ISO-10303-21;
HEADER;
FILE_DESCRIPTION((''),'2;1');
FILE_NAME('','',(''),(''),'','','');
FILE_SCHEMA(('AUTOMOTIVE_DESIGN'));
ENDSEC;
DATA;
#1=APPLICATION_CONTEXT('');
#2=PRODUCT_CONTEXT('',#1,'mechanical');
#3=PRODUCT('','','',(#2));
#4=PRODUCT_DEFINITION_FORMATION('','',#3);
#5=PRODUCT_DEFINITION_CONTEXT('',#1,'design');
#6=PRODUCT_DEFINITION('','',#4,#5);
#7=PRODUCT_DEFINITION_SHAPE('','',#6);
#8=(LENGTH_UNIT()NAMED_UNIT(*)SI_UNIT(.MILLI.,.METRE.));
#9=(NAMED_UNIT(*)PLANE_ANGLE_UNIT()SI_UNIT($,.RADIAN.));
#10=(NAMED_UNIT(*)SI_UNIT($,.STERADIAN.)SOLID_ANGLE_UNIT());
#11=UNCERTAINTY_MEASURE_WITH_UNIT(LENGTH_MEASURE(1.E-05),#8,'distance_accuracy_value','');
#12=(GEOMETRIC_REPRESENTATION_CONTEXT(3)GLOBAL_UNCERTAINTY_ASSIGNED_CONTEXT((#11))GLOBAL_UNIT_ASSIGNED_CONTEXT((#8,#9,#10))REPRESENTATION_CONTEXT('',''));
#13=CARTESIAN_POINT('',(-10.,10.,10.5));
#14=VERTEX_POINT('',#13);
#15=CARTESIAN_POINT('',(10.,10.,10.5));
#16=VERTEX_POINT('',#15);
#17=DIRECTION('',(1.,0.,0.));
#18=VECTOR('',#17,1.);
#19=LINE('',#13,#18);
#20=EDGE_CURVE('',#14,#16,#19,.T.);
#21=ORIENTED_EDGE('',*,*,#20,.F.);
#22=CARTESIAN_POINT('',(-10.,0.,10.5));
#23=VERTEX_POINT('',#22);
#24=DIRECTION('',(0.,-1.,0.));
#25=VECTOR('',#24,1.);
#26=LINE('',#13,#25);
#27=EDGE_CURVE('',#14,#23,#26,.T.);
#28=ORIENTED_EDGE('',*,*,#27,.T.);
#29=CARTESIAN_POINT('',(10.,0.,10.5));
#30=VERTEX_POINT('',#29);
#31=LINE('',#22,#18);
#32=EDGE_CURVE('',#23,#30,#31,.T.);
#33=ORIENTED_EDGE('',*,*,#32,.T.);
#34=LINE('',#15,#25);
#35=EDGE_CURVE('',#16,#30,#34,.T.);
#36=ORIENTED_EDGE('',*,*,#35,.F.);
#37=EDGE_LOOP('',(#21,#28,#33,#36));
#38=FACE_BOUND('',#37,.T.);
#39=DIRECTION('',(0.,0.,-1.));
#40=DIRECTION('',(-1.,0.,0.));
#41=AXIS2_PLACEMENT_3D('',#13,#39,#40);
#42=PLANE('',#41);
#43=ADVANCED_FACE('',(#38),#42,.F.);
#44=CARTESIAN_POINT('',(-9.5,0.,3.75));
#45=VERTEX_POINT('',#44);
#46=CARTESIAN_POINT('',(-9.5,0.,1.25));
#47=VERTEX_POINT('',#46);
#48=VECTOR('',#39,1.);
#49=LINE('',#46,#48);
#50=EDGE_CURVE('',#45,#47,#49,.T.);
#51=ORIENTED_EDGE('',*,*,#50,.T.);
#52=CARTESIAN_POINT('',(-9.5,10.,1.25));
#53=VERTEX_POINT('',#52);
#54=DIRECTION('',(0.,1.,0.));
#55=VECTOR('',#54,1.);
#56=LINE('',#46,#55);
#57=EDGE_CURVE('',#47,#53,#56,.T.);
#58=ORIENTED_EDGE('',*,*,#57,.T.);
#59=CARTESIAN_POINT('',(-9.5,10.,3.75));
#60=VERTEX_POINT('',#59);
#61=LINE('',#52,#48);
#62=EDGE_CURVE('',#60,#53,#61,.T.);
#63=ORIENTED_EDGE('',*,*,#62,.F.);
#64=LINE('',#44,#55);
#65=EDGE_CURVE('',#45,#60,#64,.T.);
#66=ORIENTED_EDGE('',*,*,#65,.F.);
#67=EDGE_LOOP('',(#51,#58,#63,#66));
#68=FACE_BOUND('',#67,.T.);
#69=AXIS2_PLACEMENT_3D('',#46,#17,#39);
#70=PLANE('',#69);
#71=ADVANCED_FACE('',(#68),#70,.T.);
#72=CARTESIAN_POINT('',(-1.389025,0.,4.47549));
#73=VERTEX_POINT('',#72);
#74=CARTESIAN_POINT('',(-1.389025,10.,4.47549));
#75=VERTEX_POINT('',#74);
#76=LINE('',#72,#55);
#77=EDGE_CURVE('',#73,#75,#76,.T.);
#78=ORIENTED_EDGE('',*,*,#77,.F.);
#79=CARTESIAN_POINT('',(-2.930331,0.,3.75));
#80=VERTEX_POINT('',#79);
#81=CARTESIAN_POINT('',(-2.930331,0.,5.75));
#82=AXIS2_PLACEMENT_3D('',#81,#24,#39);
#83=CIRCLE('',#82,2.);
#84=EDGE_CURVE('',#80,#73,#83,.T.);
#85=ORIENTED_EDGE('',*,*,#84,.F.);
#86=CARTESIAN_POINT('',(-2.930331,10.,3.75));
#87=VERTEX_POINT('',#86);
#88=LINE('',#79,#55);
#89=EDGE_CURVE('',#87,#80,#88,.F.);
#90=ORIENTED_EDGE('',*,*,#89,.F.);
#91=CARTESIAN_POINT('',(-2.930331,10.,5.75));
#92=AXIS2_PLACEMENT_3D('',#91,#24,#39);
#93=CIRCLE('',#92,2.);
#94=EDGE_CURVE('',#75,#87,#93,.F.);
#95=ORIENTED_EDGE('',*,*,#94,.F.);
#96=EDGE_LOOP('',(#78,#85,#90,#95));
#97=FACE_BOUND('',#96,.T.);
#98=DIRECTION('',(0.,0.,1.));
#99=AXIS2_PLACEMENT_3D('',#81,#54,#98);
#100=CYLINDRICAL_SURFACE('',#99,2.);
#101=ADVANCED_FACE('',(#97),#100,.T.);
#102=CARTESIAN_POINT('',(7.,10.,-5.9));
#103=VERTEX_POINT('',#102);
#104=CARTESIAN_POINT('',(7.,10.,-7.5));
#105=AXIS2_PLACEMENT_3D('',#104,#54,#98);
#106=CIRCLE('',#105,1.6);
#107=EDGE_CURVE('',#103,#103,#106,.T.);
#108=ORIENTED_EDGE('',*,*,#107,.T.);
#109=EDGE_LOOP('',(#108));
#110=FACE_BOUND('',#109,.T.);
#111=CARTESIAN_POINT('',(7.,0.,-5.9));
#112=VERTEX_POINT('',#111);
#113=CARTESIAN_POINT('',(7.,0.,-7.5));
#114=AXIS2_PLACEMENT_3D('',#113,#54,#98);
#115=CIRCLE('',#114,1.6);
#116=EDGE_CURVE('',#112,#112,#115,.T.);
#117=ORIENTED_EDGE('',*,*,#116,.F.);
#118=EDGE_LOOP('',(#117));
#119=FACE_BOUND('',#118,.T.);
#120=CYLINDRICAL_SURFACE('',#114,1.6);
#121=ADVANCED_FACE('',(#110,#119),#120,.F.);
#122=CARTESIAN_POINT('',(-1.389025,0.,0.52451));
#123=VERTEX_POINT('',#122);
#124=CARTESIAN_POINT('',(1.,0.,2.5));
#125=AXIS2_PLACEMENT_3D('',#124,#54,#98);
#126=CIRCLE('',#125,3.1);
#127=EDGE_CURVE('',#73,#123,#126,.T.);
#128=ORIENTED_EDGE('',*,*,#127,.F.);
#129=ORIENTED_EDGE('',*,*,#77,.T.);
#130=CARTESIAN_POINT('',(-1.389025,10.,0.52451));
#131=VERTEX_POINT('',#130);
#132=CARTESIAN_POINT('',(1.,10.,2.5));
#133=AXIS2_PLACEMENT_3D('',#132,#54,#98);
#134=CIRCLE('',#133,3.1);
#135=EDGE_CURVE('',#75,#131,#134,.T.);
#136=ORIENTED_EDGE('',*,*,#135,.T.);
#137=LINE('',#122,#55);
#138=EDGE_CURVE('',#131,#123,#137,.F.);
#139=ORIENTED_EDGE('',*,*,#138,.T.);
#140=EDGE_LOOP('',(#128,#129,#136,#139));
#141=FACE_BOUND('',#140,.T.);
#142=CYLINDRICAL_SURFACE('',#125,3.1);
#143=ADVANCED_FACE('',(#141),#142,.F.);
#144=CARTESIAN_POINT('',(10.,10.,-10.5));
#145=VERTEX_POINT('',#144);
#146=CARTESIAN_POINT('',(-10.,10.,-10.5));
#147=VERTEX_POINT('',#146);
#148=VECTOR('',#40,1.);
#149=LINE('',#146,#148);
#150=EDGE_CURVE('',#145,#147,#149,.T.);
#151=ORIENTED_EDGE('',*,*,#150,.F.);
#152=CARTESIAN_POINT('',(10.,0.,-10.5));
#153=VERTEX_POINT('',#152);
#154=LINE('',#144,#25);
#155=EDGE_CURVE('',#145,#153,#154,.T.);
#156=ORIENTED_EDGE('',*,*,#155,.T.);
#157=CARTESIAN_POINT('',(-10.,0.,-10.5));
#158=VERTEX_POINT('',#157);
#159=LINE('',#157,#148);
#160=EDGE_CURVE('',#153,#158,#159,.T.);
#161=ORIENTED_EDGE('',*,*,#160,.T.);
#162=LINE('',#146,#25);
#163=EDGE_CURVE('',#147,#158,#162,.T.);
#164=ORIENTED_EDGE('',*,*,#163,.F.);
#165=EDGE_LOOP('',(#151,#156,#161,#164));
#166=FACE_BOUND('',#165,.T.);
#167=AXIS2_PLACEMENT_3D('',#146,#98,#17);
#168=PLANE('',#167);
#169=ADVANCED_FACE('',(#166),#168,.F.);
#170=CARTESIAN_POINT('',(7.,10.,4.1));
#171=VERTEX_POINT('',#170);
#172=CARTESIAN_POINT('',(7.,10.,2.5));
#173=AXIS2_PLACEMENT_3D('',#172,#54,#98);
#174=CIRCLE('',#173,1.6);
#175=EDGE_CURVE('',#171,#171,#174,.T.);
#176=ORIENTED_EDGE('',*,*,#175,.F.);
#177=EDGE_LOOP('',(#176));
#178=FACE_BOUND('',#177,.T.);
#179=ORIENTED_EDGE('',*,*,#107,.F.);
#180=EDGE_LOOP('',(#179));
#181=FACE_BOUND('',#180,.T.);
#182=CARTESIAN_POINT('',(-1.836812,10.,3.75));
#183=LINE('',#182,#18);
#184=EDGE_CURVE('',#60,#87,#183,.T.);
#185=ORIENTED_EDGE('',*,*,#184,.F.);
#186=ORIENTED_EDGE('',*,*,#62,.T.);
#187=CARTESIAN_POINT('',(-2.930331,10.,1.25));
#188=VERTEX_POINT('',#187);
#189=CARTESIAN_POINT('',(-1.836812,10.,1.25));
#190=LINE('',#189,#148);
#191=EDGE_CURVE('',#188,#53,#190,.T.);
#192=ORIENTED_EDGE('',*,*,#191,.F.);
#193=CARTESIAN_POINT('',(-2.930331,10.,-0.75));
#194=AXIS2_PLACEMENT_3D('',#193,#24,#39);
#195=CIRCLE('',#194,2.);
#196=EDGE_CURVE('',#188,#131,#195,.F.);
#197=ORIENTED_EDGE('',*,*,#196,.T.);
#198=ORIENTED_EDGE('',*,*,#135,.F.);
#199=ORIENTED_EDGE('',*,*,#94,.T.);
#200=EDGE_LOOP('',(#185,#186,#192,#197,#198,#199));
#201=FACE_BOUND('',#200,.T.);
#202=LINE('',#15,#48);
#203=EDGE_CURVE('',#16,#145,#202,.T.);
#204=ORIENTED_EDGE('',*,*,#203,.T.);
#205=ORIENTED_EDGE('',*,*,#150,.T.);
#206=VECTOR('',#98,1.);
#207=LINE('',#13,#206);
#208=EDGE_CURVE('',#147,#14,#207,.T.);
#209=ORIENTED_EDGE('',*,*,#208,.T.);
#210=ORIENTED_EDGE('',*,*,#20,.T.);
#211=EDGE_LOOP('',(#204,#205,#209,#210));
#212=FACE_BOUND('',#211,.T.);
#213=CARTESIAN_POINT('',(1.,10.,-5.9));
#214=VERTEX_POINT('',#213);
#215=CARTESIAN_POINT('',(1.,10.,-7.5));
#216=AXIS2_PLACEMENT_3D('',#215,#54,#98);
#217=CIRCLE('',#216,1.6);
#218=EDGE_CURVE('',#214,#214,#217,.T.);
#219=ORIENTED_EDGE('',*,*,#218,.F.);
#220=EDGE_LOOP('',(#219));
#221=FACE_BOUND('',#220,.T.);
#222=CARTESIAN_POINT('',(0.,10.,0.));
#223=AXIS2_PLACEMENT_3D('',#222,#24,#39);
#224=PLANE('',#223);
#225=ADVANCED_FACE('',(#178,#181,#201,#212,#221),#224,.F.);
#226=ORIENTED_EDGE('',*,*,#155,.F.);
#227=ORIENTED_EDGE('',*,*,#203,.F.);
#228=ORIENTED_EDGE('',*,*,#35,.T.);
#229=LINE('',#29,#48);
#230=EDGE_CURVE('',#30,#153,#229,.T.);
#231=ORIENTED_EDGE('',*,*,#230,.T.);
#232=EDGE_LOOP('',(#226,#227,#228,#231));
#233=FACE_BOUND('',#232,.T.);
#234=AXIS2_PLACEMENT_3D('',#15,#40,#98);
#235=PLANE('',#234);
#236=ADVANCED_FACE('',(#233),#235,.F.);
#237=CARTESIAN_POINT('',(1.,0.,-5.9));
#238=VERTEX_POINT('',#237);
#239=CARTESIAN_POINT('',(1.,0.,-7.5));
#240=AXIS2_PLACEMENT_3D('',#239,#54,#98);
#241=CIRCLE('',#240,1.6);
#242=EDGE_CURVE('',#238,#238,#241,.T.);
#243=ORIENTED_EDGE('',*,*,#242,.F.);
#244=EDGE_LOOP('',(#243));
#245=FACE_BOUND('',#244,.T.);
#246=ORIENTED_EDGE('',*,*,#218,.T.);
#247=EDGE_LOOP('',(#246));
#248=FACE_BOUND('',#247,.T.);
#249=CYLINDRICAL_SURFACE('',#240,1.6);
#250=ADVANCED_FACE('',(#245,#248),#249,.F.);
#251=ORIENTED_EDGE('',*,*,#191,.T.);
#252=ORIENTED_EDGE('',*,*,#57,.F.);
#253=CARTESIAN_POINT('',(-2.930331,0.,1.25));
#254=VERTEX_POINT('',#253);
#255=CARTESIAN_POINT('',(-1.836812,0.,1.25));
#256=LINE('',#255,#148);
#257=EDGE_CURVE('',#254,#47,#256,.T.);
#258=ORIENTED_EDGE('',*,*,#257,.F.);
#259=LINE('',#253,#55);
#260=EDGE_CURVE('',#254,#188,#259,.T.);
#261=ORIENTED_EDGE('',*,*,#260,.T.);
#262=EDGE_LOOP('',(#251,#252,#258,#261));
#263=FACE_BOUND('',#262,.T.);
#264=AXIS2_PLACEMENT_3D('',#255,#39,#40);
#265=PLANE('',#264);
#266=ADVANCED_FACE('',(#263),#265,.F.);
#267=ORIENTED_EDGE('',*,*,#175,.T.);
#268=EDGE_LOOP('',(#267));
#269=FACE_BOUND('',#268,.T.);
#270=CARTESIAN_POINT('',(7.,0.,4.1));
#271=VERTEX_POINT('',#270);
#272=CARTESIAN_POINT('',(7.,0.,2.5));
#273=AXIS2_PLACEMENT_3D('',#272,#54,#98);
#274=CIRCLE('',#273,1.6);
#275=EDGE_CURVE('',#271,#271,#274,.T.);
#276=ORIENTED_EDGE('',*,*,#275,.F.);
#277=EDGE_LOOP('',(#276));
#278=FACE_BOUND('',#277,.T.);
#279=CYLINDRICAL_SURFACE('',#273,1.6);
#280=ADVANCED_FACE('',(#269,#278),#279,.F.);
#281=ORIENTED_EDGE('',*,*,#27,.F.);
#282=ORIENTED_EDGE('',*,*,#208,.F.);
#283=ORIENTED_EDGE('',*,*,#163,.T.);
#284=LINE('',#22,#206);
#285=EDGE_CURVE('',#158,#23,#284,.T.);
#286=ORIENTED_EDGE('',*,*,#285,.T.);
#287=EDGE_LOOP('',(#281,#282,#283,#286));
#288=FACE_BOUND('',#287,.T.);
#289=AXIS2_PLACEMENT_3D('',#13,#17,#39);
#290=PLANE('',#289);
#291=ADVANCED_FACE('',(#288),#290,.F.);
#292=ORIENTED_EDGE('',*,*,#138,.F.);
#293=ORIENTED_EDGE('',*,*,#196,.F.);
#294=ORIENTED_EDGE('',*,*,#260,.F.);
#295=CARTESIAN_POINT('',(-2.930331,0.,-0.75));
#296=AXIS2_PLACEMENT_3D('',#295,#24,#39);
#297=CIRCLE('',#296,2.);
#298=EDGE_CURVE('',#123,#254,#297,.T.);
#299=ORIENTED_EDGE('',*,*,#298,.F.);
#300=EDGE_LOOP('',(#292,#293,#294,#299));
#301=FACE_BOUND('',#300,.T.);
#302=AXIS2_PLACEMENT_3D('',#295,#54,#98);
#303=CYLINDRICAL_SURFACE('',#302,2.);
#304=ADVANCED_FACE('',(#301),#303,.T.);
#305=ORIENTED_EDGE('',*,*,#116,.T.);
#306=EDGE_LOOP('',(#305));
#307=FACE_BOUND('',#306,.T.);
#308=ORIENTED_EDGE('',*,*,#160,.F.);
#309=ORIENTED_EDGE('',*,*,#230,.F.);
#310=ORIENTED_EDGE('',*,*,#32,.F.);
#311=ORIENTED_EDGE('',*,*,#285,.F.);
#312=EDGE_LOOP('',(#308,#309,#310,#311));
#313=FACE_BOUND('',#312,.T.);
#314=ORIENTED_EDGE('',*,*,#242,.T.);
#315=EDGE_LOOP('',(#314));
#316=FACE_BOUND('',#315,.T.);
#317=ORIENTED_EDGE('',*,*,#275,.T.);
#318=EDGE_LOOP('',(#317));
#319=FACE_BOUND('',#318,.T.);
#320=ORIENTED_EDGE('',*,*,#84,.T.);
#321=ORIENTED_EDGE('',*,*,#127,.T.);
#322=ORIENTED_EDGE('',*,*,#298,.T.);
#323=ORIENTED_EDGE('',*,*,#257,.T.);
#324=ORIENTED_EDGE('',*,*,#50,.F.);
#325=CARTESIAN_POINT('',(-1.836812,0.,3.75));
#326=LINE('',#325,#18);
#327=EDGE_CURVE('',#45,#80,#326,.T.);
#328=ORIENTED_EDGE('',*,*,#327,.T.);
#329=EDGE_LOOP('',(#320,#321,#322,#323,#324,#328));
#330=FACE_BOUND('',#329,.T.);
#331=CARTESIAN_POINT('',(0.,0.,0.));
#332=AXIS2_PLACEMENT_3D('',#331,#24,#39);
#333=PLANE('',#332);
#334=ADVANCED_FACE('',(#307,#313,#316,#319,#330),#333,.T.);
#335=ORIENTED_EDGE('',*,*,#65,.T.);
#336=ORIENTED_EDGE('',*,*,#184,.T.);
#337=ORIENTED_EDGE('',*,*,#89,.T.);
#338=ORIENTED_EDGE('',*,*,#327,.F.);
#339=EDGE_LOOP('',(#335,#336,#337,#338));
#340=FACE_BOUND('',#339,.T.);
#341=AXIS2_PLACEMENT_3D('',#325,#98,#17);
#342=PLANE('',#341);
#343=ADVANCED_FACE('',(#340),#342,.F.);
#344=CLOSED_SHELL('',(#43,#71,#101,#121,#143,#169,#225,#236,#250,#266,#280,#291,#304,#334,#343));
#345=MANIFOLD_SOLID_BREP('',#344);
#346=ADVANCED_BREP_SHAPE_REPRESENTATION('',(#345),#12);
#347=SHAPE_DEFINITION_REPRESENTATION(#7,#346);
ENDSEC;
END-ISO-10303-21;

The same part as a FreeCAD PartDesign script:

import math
import FreeCAD as App
import Part
import Sketcher

V = App.Vector
Q = App.Units.Quantity


def edges_at(feature, points):
    """Names of the edges that pass closest to the given points."""
    edges = feature.Shape.Edges
    near = lambda p: min(range(len(edges)), key=lambda i: edges[i].distToShape(Part.Vertex(*p))[0])
    return sorted({f"Edge{near(p) + 1}" for p in points})

doc = App.newDocument("Part")
params = doc.addObject("Spreadsheet::Sheet", "Params")
for row, (alias, value) in enumerate([
    ("sketch1_width", "20 mm"),
    ("sketch1_height", "21 mm"),
    ("pad1_length", "10 mm"),
    ("sketch2_radius", "3.1 mm"),
    ("sketch2_height", "2.5 mm"),
    ("fillet_radius", "2 mm"),
    ("sketch3_diameter", "3.2 mm"),
    ("sketch4_width", "0.5 mm"),
    ("sketch4_height", "2.5 mm"),
    ("pad2_length", "10 mm"),
], start=1):
    params.set(f"A{row}", alias)
    params.set(f"B{row}", "=" + value)
    params.setAlias(f"B{row}", alias)

body = doc.addObject("PartDesign::Body", "Body")

# Sketch on XZ plane
sketch1 = body.newObject("Sketcher::SketchObject", "Sketch")
sketch1.AttachmentSupport = (doc.getObject("XZ_Plane"), [""])
sketch1.MapMode = "FlatFace"
sketch1.addGeometry([
    Part.LineSegment(V(-10, -10, 0), V(-10, 10, 0)),
    Part.LineSegment(V(-10, 10, 0), V(10, 10, 0)),
    Part.LineSegment(V(10, 10, 0), V(10, -10, 0)),
    Part.LineSegment(V(10, -10, 0), V(-10, -10, 0)),
], False)
sketch1.addConstraint([
    Sketcher.Constraint("Coincident", 0, 2, 1, 1),
    Sketcher.Constraint("Coincident", 1, 2, 2, 1),
    Sketcher.Constraint("Coincident", 2, 2, 3, 1),
    Sketcher.Constraint("Coincident", 3, 2, 0, 1),
    Sketcher.Constraint("Vertical", 0),
    Sketcher.Constraint("Horizontal", 1),
    Sketcher.Constraint("Vertical", 2),
    Sketcher.Constraint("Horizontal", 3),
    Sketcher.Constraint("Symmetric", 0, 2, 2, 2, -1, 1),
    Sketcher.Constraint("DistanceX", 1, 1, 1, 2, Q("20 mm")),
    Sketcher.Constraint("DistanceY", 0, 1, 0, 2, Q("21 mm")),
])
sketch1.setExpression("Constraints[9]", "Params.sketch1_width")
sketch1.setExpression("Constraints[10]", "Params.sketch1_height")
pad1 = body.newObject("PartDesign::Pad", "Pad")
pad1.Profile = sketch1
pad1.setExpression("Length", "Params.pad1_length")
pad1.Reversed = True

# Sketch on XZ plane
sketch2 = body.newObject("Sketcher::SketchObject", "Sketch001")
sketch2.AttachmentSupport = (doc.getObject("XZ_Plane"), [""])
sketch2.MapMode = "FlatFace"
sketch2.AttachmentOffset = App.Placement(V(0, 0, -10), App.Rotation())
sketch2.addGeometry([
    Part.LineSegment(V(-1.8, 1.2, 0), V(-10, 1.2, 0)),
    Part.LineSegment(V(-10, 1.2, 0), V(-10, 3.8, 0)),
    Part.LineSegment(V(-10, 3.8, 0), V(-1.8, 3.8, 0)),
    Part.ArcOfCircle(Part.Circle(V(1, 2.5, 0), V(0, 0, 1), 3.1), math.radians(-156), math.radians(156)),
], False)
sketch2.addConstraint([
    Sketcher.Constraint("Coincident", 0, 2, 1, 1),
    Sketcher.Constraint("Coincident", 1, 2, 2, 1),
    Sketcher.Constraint("Coincident", 2, 2, 3, 2),
    Sketcher.Constraint("Coincident", 3, 1, 0, 1),
    Sketcher.Constraint("Horizontal", 0),
    Sketcher.Constraint("Vertical", 1),
    Sketcher.Constraint("Horizontal", 2),
    Sketcher.Constraint("Vertical", 2, 2, 3, 1),
    Sketcher.Constraint("Radius", 3, Q("3.1 mm")),
    Sketcher.Constraint("DistanceY", 1, 1, 1, 2, Q("2.5 mm")),
    Sketcher.Constraint("DistanceX", -1, 1, 3, 3, Q("1 mm")),
    Sketcher.Constraint("DistanceX", 0, 2, -1, 1, Q("10 mm")),
    Sketcher.Constraint("DistanceY", -1, 1, 3, 3, Q("2.5 mm")),
])
sketch2.setExpression("Constraints[8]", "Params.sketch2_radius")
sketch2.setExpression("Constraints[9]", "Params.sketch2_height")
pocket1 = body.newObject("PartDesign::Pocket", "Pocket")
pocket1.Profile = sketch2
pocket1.Type = "ThroughAll"
pocket1.Reversed = True
doc.recompute()

fillet = body.newObject("PartDesign::Fillet", "Fillet")
fillet.Base = (pocket1, edges_at(pocket1, [(-1.837, 5, 1.25), (-1.837, 5, 3.75)]))
fillet.setExpression("Radius", "Params.fillet_radius")

# Sketch on XZ plane
sketch3 = body.newObject("Sketcher::SketchObject", "Sketch002")
sketch3.AttachmentSupport = (doc.getObject("XZ_Plane"), [""])
sketch3.MapMode = "FlatFace"
sketch3.AttachmentOffset = App.Placement(V(0, 0, -10), App.Rotation())
sketch3.addGeometry([
    Part.Circle(V(1, -7.5, 0), V(0, 0, 1), 1.6),
    Part.Circle(V(7, -7.5, 0), V(0, 0, 1), 1.6),
    Part.Circle(V(7, 2.5, 0), V(0, 0, 1), 1.6),
], False)
sketch3.addConstraint([
    Sketcher.Constraint("Equal", 0, 1),
    Sketcher.Constraint("Equal", 1, 2),
    Sketcher.Constraint("Horizontal", 0, 3, 1, 3),
    Sketcher.Constraint("Vertical", 1, 3, 2, 3),
    Sketcher.Constraint("Diameter", 0, Q("3.2 mm")),
    Sketcher.Constraint("DistanceX", -1, 1, 0, 3, Q("1 mm")),
    Sketcher.Constraint("DistanceX", -1, 1, 1, 3, Q("7 mm")),
    Sketcher.Constraint("DistanceY", 1, 3, 2, 3, Q("10 mm")),
    Sketcher.Constraint("DistanceY", 0, 3, -1, 1, Q("7.5 mm")),
])
sketch3.setExpression("Constraints[4]", "Params.sketch3_diameter")
pocket2 = body.newObject("PartDesign::Pocket", "Pocket001")
pocket2.Profile = sketch3
pocket2.Type = "ThroughAll"
pocket2.Reversed = True

# Sketch on XZ plane
sketch4 = body.newObject("Sketcher::SketchObject", "Sketch003")
sketch4.AttachmentSupport = (doc.getObject("XZ_Plane"), [""])
sketch4.MapMode = "FlatFace"
sketch4.AttachmentOffset = App.Placement(V(0, 0, -10), App.Rotation())
sketch4.addGeometry([
    Part.LineSegment(V(-10, 1.2, 0), V(-10, 3.8, 0)),
    Part.LineSegment(V(-10, 3.8, 0), V(-9.5, 3.8, 0)),
    Part.LineSegment(V(-9.5, 3.8, 0), V(-9.5, 1.2, 0)),
    Part.LineSegment(V(-9.5, 1.2, 0), V(-10, 1.2, 0)),
], False)
sketch4.addConstraint([
    Sketcher.Constraint("Coincident", 0, 2, 1, 1),
    Sketcher.Constraint("Coincident", 1, 2, 2, 1),
    Sketcher.Constraint("Coincident", 2, 2, 3, 1),
    Sketcher.Constraint("Coincident", 3, 2, 0, 1),
    Sketcher.Constraint("Vertical", 0),
    Sketcher.Constraint("Horizontal", 1),
    Sketcher.Constraint("Vertical", 2),
    Sketcher.Constraint("Horizontal", 3),
    Sketcher.Constraint("DistanceX", 1, 1, 1, 2, Q("0.5 mm")),
    Sketcher.Constraint("DistanceY", 0, 1, 0, 2, Q("2.5 mm")),
    Sketcher.Constraint("DistanceX", 0, 2, -1, 1, Q("10 mm")),
    Sketcher.Constraint("DistanceY", -1, 1, 0, 2, Q("3.75 mm")),
])
sketch4.setExpression("Constraints[8]", "Params.sketch4_width")
sketch4.setExpression("Constraints[9]", "Params.sketch4_height")
pad2 = body.newObject("PartDesign::Pad", "Pad001")
pad2.Profile = sketch4
pad2.setExpression("Length", "Params.pad2_length")

doc.recompute()
